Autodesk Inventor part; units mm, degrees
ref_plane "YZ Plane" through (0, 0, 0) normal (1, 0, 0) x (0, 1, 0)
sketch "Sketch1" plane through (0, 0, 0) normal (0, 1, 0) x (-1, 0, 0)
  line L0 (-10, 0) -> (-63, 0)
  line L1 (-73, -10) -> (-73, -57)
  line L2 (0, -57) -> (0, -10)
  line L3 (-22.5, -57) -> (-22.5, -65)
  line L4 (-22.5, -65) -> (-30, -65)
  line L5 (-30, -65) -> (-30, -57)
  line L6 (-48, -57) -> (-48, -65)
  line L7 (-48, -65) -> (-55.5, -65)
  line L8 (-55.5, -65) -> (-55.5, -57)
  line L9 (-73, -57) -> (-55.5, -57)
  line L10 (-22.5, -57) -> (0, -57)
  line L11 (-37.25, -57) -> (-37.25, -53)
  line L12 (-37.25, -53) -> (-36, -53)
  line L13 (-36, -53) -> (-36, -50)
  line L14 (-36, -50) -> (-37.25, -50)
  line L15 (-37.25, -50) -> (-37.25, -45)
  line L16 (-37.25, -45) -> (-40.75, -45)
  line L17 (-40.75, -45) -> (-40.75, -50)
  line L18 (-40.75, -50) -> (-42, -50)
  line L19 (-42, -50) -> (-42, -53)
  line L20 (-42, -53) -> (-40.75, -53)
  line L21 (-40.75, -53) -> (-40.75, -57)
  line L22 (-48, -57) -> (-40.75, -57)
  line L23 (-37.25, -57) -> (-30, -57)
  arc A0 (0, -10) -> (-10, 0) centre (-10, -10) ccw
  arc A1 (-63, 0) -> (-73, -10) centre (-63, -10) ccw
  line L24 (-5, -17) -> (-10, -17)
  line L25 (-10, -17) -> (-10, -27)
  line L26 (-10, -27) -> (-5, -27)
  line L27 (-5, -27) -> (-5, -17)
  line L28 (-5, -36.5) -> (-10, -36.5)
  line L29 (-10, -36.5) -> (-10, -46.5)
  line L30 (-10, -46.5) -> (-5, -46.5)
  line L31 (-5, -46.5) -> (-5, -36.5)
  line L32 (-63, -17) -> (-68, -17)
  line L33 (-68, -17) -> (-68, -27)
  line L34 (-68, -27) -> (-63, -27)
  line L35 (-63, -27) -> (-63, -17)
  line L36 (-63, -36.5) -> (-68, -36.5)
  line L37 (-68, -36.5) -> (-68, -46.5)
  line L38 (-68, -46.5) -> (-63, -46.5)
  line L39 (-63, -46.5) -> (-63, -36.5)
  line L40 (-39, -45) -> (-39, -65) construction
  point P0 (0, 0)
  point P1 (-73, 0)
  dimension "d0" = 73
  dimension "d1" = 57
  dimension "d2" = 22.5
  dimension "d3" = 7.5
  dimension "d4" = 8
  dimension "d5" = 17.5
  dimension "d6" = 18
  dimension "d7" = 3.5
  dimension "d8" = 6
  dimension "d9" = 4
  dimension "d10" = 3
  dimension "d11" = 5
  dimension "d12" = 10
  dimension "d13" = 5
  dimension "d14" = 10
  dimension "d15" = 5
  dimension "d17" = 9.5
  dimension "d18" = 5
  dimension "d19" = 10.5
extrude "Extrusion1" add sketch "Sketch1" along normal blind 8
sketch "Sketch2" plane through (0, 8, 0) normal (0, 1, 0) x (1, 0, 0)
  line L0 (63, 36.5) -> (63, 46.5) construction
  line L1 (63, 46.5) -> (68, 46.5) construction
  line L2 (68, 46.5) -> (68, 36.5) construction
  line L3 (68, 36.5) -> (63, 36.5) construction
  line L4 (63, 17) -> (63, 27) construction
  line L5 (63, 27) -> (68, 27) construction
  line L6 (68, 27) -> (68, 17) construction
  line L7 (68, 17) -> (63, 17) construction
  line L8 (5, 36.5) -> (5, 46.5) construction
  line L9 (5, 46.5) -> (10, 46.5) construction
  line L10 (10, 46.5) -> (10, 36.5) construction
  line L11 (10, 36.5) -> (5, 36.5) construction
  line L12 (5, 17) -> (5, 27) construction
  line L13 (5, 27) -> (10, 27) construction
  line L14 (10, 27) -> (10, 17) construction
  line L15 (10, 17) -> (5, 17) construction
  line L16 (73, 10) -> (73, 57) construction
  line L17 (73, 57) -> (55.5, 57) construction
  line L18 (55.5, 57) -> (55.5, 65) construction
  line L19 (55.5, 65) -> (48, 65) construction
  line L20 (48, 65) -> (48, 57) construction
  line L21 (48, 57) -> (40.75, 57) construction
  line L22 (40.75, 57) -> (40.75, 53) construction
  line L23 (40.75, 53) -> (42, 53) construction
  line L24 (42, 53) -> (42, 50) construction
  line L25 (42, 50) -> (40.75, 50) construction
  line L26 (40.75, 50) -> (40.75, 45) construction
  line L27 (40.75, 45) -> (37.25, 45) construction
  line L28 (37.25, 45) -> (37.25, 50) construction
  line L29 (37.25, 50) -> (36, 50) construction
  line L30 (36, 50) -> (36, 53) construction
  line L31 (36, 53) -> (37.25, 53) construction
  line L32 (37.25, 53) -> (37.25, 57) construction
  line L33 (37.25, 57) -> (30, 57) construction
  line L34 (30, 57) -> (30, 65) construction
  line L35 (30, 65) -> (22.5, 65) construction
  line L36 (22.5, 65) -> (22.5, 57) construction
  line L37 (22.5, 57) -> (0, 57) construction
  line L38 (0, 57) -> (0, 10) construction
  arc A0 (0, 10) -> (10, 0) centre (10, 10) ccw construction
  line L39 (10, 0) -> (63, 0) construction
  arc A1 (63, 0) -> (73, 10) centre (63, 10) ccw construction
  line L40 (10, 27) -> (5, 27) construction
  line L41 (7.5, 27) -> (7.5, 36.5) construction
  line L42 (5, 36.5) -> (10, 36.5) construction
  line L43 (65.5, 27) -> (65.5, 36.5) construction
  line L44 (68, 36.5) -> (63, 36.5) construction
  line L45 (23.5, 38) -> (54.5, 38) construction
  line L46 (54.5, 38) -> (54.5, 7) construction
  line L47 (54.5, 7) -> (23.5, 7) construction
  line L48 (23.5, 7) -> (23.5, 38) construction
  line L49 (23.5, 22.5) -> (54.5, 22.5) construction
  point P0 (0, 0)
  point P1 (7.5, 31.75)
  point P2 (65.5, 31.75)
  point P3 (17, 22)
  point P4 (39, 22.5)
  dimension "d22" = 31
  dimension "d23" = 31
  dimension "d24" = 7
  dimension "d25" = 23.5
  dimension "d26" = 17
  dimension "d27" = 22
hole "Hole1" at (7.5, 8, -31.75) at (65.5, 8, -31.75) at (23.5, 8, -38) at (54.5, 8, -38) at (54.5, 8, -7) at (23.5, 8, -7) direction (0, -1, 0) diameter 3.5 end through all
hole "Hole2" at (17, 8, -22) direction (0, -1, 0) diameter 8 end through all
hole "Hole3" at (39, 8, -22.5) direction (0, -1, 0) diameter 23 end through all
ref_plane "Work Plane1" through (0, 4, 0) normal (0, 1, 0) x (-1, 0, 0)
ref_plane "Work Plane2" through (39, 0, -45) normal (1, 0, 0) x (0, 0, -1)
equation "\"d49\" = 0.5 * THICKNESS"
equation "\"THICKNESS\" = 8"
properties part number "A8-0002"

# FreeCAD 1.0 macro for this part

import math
import FreeCAD as App
import Part
import Sketcher
from FreeCAD import Vector
Q = App.Units.Quantity

doc = App.newDocument("Part")
params = doc.addObject("Spreadsheet::Sheet", "Params")
for row, (alias, value) in enumerate([
    ("sketch1_radius", "10 mm"),
    ("sketch1_width", "5 mm"),
    ("sketch1_height", "8 mm"),
    ("sketch1_height2", "4 mm"),
    ("sketch1_height3", "3 mm"),
    ("pad1_length", "8 mm"),
    ("sketch2_diameter", "3.5 mm"),
    ("hole_diameter", "3.5 mm"),
    ("sketch3_diameter", "8 mm"),
    ("hole2_diameter", "8 mm"),
    ("sketch4_diameter", "23 mm"),
    ("hole3_diameter", "23 mm"),
], start=1):
    params.set(f"A{row}", alias)
    params.set(f"B{row}", "=" + value)
    params.setAlias(f"B{row}", alias)

body = doc.addObject("PartDesign::Body", "Body")

sketch1 = doc.addObject("Sketcher::SketchObject", "Sketch")
body.addObject(sketch1)
sketch1.AttachmentSupport = (doc.XZ_Plane, [""])
sketch1.MapMode = "FlatFace"
sketch1.addGeometry(Part.ArcOfCircle(Part.Circle(Vector(10, -10, 0), Vector(0, 0, 1), 10), math.radians(90), math.radians(180)), False)
sketch1.addGeometry(Part.LineSegment(Vector(10, 0, 0), Vector(63, 0, 0)), False)
sketch1.addGeometry(Part.ArcOfCircle(Part.Circle(Vector(63, -10, 0), Vector(0, 0, 1), 10), math.radians(0), math.radians(90)), False)
sketch1.addGeometry(Part.LineSegment(Vector(73, -10, 0), Vector(73, -57, 0)), False)
sketch1.addGeometry(Part.LineSegment(Vector(73, -57, 0), Vector(55.5, -57, 0)), False)
sketch1.addGeometry(Part.LineSegment(Vector(55.5, -57, 0), Vector(55.5, -65, 0)), False)
sketch1.addGeometry(Part.LineSegment(Vector(55.5, -65, 0), Vector(48, -65, 0)), False)
sketch1.addGeometry(Part.LineSegment(Vector(48, -65, 0), Vector(48, -57, 0)), False)
sketch1.addGeometry(Part.LineSegment(Vector(48, -57, 0), Vector(40.8, -57, 0)), False)
sketch1.addGeometry(Part.LineSegment(Vector(40.8, -57, 0), Vector(40.8, -53, 0)), False)
sketch1.addGeometry(Part.LineSegment(Vector(40.8, -53, 0), Vector(42, -53, 0)), False)
sketch1.addGeometry(Part.LineSegment(Vector(42, -53, 0), Vector(42, -50, 0)), False)
sketch1.addGeometry(Part.LineSegment(Vector(42, -50, 0), Vector(40.8, -50, 0)), False)
sketch1.addGeometry(Part.LineSegment(Vector(40.8, -50, 0), Vector(40.8, -45, 0)), False)
sketch1.addGeometry(Part.LineSegment(Vector(40.8, -45, 0), Vector(37.2, -45, 0)), False)
sketch1.addGeometry(Part.LineSegment(Vector(37.2, -45, 0), Vector(37.2, -50, 0)), False)
sketch1.addGeometry(Part.LineSegment(Vector(37.2, -50, 0), Vector(36, -50, 0)), False)
sketch1.addGeometry(Part.LineSegment(Vector(36, -50, 0), Vector(36, -53, 0)), False)
sketch1.addGeometry(Part.LineSegment(Vector(36, -53, 0), Vector(37.2, -53, 0)), False)
sketch1.addGeometry(Part.LineSegment(Vector(37.2, -53, 0), Vector(37.2, -57, 0)), False)
sketch1.addGeometry(Part.LineSegment(Vector(37.2, -57, 0), Vector(30, -57, 0)), False)
sketch1.addGeometry(Part.LineSegment(Vector(30, -57, 0), Vector(30, -65, 0)), False)
sketch1.addGeometry(Part.LineSegment(Vector(30, -65, 0), Vector(22.5, -65, 0)), False)
sketch1.addGeometry(Part.LineSegment(Vector(22.5, -65, 0), Vector(22.5, -57, 0)), False)
sketch1.addGeometry(Part.LineSegment(Vector(22.5, -57, 0), Vector(0, -57, 0)), False)
sketch1.addGeometry(Part.LineSegment(Vector(0, -57, 0), Vector(0, -10, 0)), False)
sketch1.addGeometry(Part.LineSegment(Vector(68, -36.5, 0), Vector(63, -36.5, 0)), False)
sketch1.addGeometry(Part.LineSegment(Vector(63, -36.5, 0), Vector(63, -46.5, 0)), False)
sketch1.addGeometry(Part.LineSegment(Vector(63, -46.5, 0), Vector(68, -46.5, 0)), False)
sketch1.addGeometry(Part.LineSegment(Vector(68, -46.5, 0), Vector(68, -36.5, 0)), False)
sketch1.addGeometry(Part.LineSegment(Vector(10, -36.5, 0), Vector(5, -36.5, 0)), False)
sketch1.addGeometry(Part.LineSegment(Vector(5, -36.5, 0), Vector(5, -46.5, 0)), False)
sketch1.addGeometry(Part.LineSegment(Vector(5, -46.5, 0), Vector(10, -46.5, 0)), False)
sketch1.addGeometry(Part.LineSegment(Vector(10, -46.5, 0), Vector(10, -36.5, 0)), False)
sketch1.addGeometry(Part.LineSegment(Vector(68, -17, 0), Vector(63, -17, 0)), False)
sketch1.addGeometry(Part.LineSegment(Vector(63, -17, 0), Vector(63, -27, 0)), False)
sketch1.addGeometry(Part.LineSegment(Vector(63, -27, 0), Vector(68, -27, 0)), False)
sketch1.addGeometry(Part.LineSegment(Vector(68, -27, 0), Vector(68, -17, 0)), False)
sketch1.addGeometry(Part.LineSegment(Vector(10, -17, 0), Vector(5, -17, 0)), False)
sketch1.addGeometry(Part.LineSegment(Vector(5, -17, 0), Vector(5, -27, 0)), False)
sketch1.addGeometry(Part.LineSegment(Vector(5, -27, 0), Vector(10, -27, 0)), False)
sketch1.addGeometry(Part.LineSegment(Vector(10, -27, 0), Vector(10, -17, 0)), False)
sketch1.addConstraint(Sketcher.Constraint("Tangent", 0, 1, 1, 1))
sketch1.addConstraint(Sketcher.Constraint("Tangent", 1, 2, 2, 2))
sketch1.addConstraint(Sketcher.Constraint("Tangent", 2, 1, 3, 1))
sketch1.addConstraint(Sketcher.Constraint("Coincident", 3, 2, 4, 1))
sketch1.addConstraint(Sketcher.Constraint("Coincident", 4, 2, 5, 1))
sketch1.addConstraint(Sketcher.Constraint("Coincident", 5, 2, 6, 1))
sketch1.addConstraint(Sketcher.Constraint("Coincident", 6, 2, 7, 1))
sketch1.addConstraint(Sketcher.Constraint("Coincident", 7, 2, 8, 1))
sketch1.addConstraint(Sketcher.Constraint("Coincident", 8, 2, 9, 1))
sketch1.addConstraint(Sketcher.Constraint("Coincident", 9, 2, 10, 1))
sketch1.addConstraint(Sketcher.Constraint("Coincident", 10, 2, 11, 1))
sketch1.addConstraint(Sketcher.Constraint("Coincident", 11, 2, 12, 1))
sketch1.addConstraint(Sketcher.Constraint("Coincident", 12, 2, 13, 1))
sketch1.addConstraint(Sketcher.Constraint("Coincident", 13, 2, 14, 1))
sketch1.addConstraint(Sketcher.Constraint("Coincident", 14, 2, 15, 1))
sketch1.addConstraint(Sketcher.Constraint("Coincident", 15, 2, 16, 1))
sketch1.addConstraint(Sketcher.Constraint("Coincident", 16, 2, 17, 1))
sketch1.addConstraint(Sketcher.Constraint("Coincident", 17, 2, 18, 1))
sketch1.addConstraint(Sketcher.Constraint("Coincident", 18, 2, 19, 1))
sketch1.addConstraint(Sketcher.Constraint("Coincident", 19, 2, 20, 1))
sketch1.addConstraint(Sketcher.Constraint("Coincident", 20, 2, 21, 1))
sketch1.addConstraint(Sketcher.Constraint("Coincident", 21, 2, 22, 1))
sketch1.addConstraint(Sketcher.Constraint("Coincident", 22, 2, 23, 1))
sketch1.addConstraint(Sketcher.Constraint("Coincident", 23, 2, 24, 1))
sketch1.addConstraint(Sketcher.Constraint("Coincident", 24, 2, 25, 1))
sketch1.addConstraint(Sketcher.Constraint("Tangent", 25, 2, 0, 2))
sketch1.addConstraint(Sketcher.Constraint("Coincident", 26, 2, 27, 1))
sketch1.addConstraint(Sketcher.Constraint("Coincident", 27, 2, 28, 1))
sketch1.addConstraint(Sketcher.Constraint("Coincident", 28, 2, 29, 1))
sketch1.addConstraint(Sketcher.Constraint("Coincident", 29, 2, 26, 1))
sketch1.addConstraint(Sketcher.Constraint("Coincident", 30, 2, 31, 1))
sketch1.addConstraint(Sketcher.Constraint("Coincident", 31, 2, 32, 1))
sketch1.addConstraint(Sketcher.Constraint("Coincident", 32, 2, 33, 1))
sketch1.addConstraint(Sketcher.Constraint("Coincident", 33, 2, 30, 1))
sketch1.addConstraint(Sketcher.Constraint("Coincident", 34, 2, 35, 1))
sketch1.addConstraint(Sketcher.Constraint("Coincident", 35, 2, 36, 1))
sketch1.addConstraint(Sketcher.Constraint("Coincident", 36, 2, 37, 1))
sketch1.addConstraint(Sketcher.Constraint("Coincident", 37, 2, 34, 1))
sketch1.addConstraint(Sketcher.Constraint("Coincident", 38, 2, 39, 1))
sketch1.addConstraint(Sketcher.Constraint("Coincident", 39, 2, 40, 1))
sketch1.addConstraint(Sketcher.Constraint("Coincident", 40, 2, 41, 1))
sketch1.addConstraint(Sketcher.Constraint("Coincident", 41, 2, 38, 1))
sketch1.addConstraint(Sketcher.Constraint("Horizontal", 1))
sketch1.addConstraint(Sketcher.Constraint("Vertical", 3))
sketch1.addConstraint(Sketcher.Constraint("Horizontal", 4))
sketch1.addConstraint(Sketcher.Constraint("Vertical", 5))
sketch1.addConstraint(Sketcher.Constraint("Horizontal", 6))
sketch1.addConstraint(Sketcher.Constraint("Vertical", 7))
sketch1.addConstraint(Sketcher.Constraint("Horizontal", 8))
sketch1.addConstraint(Sketcher.Constraint("Vertical", 9))
sketch1.addConstraint(Sketcher.Constraint("Horizontal", 10))
sketch1.addConstraint(Sketcher.Constraint("Vertical", 11))
sketch1.addConstraint(Sketcher.Constraint("Horizontal", 12))
sketch1.addConstraint(Sketcher.Constraint("Vertical", 13))
sketch1.addConstraint(Sketcher.Constraint("Horizontal", 14))
sketch1.addConstraint(Sketcher.Constraint("Vertical", 15))
sketch1.addConstraint(Sketcher.Constraint("Horizontal", 16))
sketch1.addConstraint(Sketcher.Constraint("Vertical", 17))
sketch1.addConstraint(Sketcher.Constraint("Horizontal", 18))
sketch1.addConstraint(Sketcher.Constraint("Vertical", 19))
sketch1.addConstraint(Sketcher.Constraint("Horizontal", 20))
sketch1.addConstraint(Sketcher.Constraint("Vertical", 21))
sketch1.addConstraint(Sketcher.Constraint("Horizontal", 22))
sketch1.addConstraint(Sketcher.Constraint("Vertical", 23))
sketch1.addConstraint(Sketcher.Constraint("Horizontal", 24))
sketch1.addConstraint(Sketcher.Constraint("Vertical", 25))
sketch1.addConstraint(Sketcher.Constraint("Horizontal", 26))
sketch1.addConstraint(Sketcher.Constraint("Vertical", 27))
sketch1.addConstraint(Sketcher.Constraint("Horizontal", 28))
sketch1.addConstraint(Sketcher.Constraint("Vertical", 29))
sketch1.addConstraint(Sketcher.Constraint("Horizontal", 30))
sketch1.addConstraint(Sketcher.Constraint("Vertical", 31))
sketch1.addConstraint(Sketcher.Constraint("Horizontal", 32))
sketch1.addConstraint(Sketcher.Constraint("Vertical", 33))
sketch1.addConstraint(Sketcher.Constraint("Horizontal", 34))
sketch1.addConstraint(Sketcher.Constraint("Vertical", 35))
sketch1.addConstraint(Sketcher.Constraint("Horizontal", 36))
sketch1.addConstraint(Sketcher.Constraint("Vertical", 37))
sketch1.addConstraint(Sketcher.Constraint("Horizontal", 38))
sketch1.addConstraint(Sketcher.Constraint("Vertical", 39))
sketch1.addConstraint(Sketcher.Constraint("Horizontal", 40))
sketch1.addConstraint(Sketcher.Constraint("Vertical", 41))
sketch1.addConstraint(Sketcher.Constraint("Equal", 0, 2))
sketch1.addConstraint(Sketcher.Constraint("PointOnObject", 0, 1, -1))
sketch1.addConstraint(Sketcher.Constraint("PointOnObject", 24, 2, -2))
sketch1.addConstraint(Sketcher.Constraint("Horizontal", 4, 2, 7, 2))
sketch1.addConstraint(Sketcher.Constraint("Horizontal", 12, 2, 15, 2))
sketch1.addConstraint(Sketcher.Constraint("Horizontal", 10, 2, 17, 2))
sketch1.addConstraint(Sketcher.Constraint("Horizontal", 8, 2, 19, 2))
sketch1.addConstraint(Sketcher.Constraint("Horizontal", 6, 2, 21, 2))
sketch1.addConstraint(Sketcher.Constraint("Horizontal", 20, 2, 23, 2))
sketch1.addConstraint(Sketcher.Constraint("Horizontal", 29, 2, 30, 2))
sketch1.addConstraint(Sketcher.Constraint("Horizontal", 28, 2, 31, 2))
sketch1.addConstraint(Sketcher.Constraint("Horizontal", 37, 2, 38, 2))
sketch1.addConstraint(Sketcher.Constraint("Horizontal", 36, 2, 39, 2))
sketch1.addConstraint(Sketcher.Constraint("Vertical", 9, 2, 12, 2))
sketch1.addConstraint(Sketcher.Constraint("Vertical", 15, 2, 18, 2))
sketch1.addConstraint(Sketcher.Constraint("Vertical", 1, 2, 26, 2))
sketch1.addConstraint(Sketcher.Constraint("Vertical", 0, 1, 32, 2))
sketch1.addConstraint(Sketcher.Constraint("Vertical", 27, 2, 34, 2))
sketch1.addConstraint(Sketcher.Constraint("Vertical", 29, 2, 36, 2))
sketch1.addConstraint(Sketcher.Constraint("Vertical", 31, 2, 38, 2))
sketch1.addConstraint(Sketcher.Constraint("Vertical", 33, 2, 40, 2))
sketch1.addConstraint(Sketcher.Constraint("Equal", 12, 16))
sketch1.addConstraint(Sketcher.Constraint("Equal", 8, 20))
sketch1.addConstraint(Sketcher.Constraint("Equal", 6, 22))
sketch1.addConstraint(Sketcher.Constraint("Equal", 28, 30))
sketch1.addConstraint(Sketcher.Constraint("Equal", 40, 13))
sketch1.addConstraint(Sketcher.Constraint("Equal", 33, 35))
sketch1.addConstraint(Sketcher.Constraint("Radius", 0, Q("10 mm")))
sketch1.addConstraint(Sketcher.Constraint("DistanceX", 26, 2, 26, 1, Q("5 mm")))
sketch1.addConstraint(Sketcher.Constraint("DistanceY", 5, 2, 5, 1, Q("8 mm")))
sketch1.addConstraint(Sketcher.Constraint("DistanceY", 9, 1, 9, 2, Q("4 mm")))
sketch1.addConstraint(Sketcher.Constraint("DistanceY", 11, 1, 11, 2, Q("3 mm")))
sketch1.addConstraint(Sketcher.Constraint("DistanceY", 27, 2, 27, 1, Q("10 mm")))
sketch1.addConstraint(Sketcher.Constraint("DistanceX", 4, 2, 4, 1, Q("17.5 mm")))
sketch1.addConstraint(Sketcher.Constraint("DistanceX", 6, 2, 6, 1, Q("7.5 mm")))
sketch1.addConstraint(Sketcher.Constraint("DistanceX", 14, 2, 14, 1, Q("3.5 mm")))
sketch1.addConstraint(Sketcher.Constraint("DistanceX", 24, 2, 24, 1, Q("22.5 mm")))
sketch1.addConstraint(Sketcher.Constraint("DistanceX", -1, 1, 2, 1, Q("73 mm")))
sketch1.addConstraint(Sketcher.Constraint("DistanceY", 3, 2, -1, 1, Q("57 mm")))
sketch1.addConstraint(Sketcher.Constraint("DistanceX", 10, 2, 7, 2, Q("6 mm")))
sketch1.addConstraint(Sketcher.Constraint("DistanceY", 4, 2, 27, 2, Q("10.5 mm")))
sketch1.addConstraint(Sketcher.Constraint("DistanceY", 26, 2, 35, 2, Q("9.5 mm")))
sketch1.setExpression("Constraints[109]", "Params.sketch1_radius")
sketch1.setExpression("Constraints[110]", "Params.sketch1_width")
sketch1.setExpression("Constraints[111]", "Params.sketch1_height")
sketch1.setExpression("Constraints[112]", "Params.sketch1_height2")
sketch1.setExpression("Constraints[113]", "Params.sketch1_height3")
pad1 = doc.addObject("PartDesign::Pad", "Pad")
body.addObject(pad1)
pad1.Profile = sketch1
pad1.setExpression("Length", "Params.pad1_length")
pad1.Reversed = True

sketch2 = doc.addObject("Sketcher::SketchObject", "Sketch001")
body.addObject(sketch2)
sketch2.AttachmentSupport = (doc.XZ_Plane, [""])
sketch2.MapMode = "FlatFace"
sketch2.AttachmentOffset = App.Placement(Vector(0, 0, -8), App.Rotation())
sketch2.addGeometry(Part.Circle(Vector(7.5, -31.8, 0), Vector(0, 0, 1), 1.8), False)
sketch2.addGeometry(Part.Circle(Vector(65.5, -31.8, 0), Vector(0, 0, 1), 1.8), False)
sketch2.addGeometry(Part.Circle(Vector(23.5, -38, 0), Vector(0, 0, 1), 1.8), False)
sketch2.addGeometry(Part.Circle(Vector(54.5, -38, 0), Vector(0, 0, 1), 1.8), False)
sketch2.addGeometry(Part.Circle(Vector(54.5, -7, 0), Vector(0, 0, 1), 1.8), False)
sketch2.addGeometry(Part.Circle(Vector(23.5, -7, 0), Vector(0, 0, 1), 1.8), False)
sketch2.addConstraint(Sketcher.Constraint("Equal", 0, 1))
sketch2.addConstraint(Sketcher.Constraint("Equal", 1, 2))
sketch2.addConstraint(Sketcher.Constraint("Equal", 2, 3))
sketch2.addConstraint(Sketcher.Constraint("Equal", 3, 4))
sketch2.addConstraint(Sketcher.Constraint("Equal", 4, 5))
sketch2.addConstraint(Sketcher.Constraint("Horizontal", 0, 3, 1, 3))
sketch2.addConstraint(Sketcher.Constraint("Horizontal", 2, 3, 3, 3))
sketch2.addConstraint(Sketcher.Constraint("Horizontal", 4, 3, 5, 3))
sketch2.addConstraint(Sketcher.Constraint("Vertical", 3, 3, 4, 3))
sketch2.addConstraint(Sketcher.Constraint("Vertical", 2, 3, 5, 3))
sketch2.addConstraint(Sketcher.Constraint("Diameter", 0, Q("3.5 mm")))
sketch2.addConstraint(Sketcher.Constraint("DistanceY", 2, 3, -1, 1, Q("38 mm")))
sketch2.addConstraint(Sketcher.Constraint("DistanceY", 4, 3, -1, 1, Q("7 mm")))
sketch2.addConstraint(Sketcher.Constraint("DistanceX", 0, 3, 1, 3, Q("58 mm")))
sketch2.addConstraint(Sketcher.Constraint("DistanceX", 0, 3, 2, 3, Q("16 mm")))
sketch2.addConstraint(Sketcher.Constraint("DistanceX", 3, 3, 1, 3, Q("11 mm")))
sketch2.addConstraint(Sketcher.Constraint("DistanceX", -1, 1, 0, 3, Q("7.5 mm")))
sketch2.addConstraint(Sketcher.Constraint("DistanceY", 0, 3, -1, 1, Q("31.75 mm")))
sketch2.setExpression("Constraints[10]", "Params.sketch2_diameter")
doc.recompute()
hole = doc.addObject("PartDesign::Hole", "Hole")
body.addObject(hole)
hole.Profile = sketch2
hole.ThreadType = "None"
hole.setExpression("Diameter", "Params.hole_diameter")
hole.DepthType = "ThroughAll"
hole.Reversed = True

sketch3 = doc.addObject("Sketcher::SketchObject", "Sketch002")
body.addObject(sketch3)
sketch3.AttachmentSupport = (doc.XZ_Plane, [""])
sketch3.MapMode = "FlatFace"
sketch3.AttachmentOffset = App.Placement(Vector(0, 0, -8), App.Rotation())
sketch3.addGeometry(Part.Circle(Vector(17, -22, 0), Vector(0, 0, 1), 4), False)
sketch3.addConstraint(Sketcher.Constraint("Diameter", 0, Q("8 mm")))
sketch3.addConstraint(Sketcher.Constraint("DistanceX", -1, 1, 0, 3, Q("17 mm")))
sketch3.addConstraint(Sketcher.Constraint("DistanceY", 0, 3, -1, 1, Q("22 mm")))
sketch3.setExpression("Constraints[0]", "Params.sketch3_diameter")
doc.recompute()
hole2 = doc.addObject("PartDesign::Hole", "Hole001")
body.addObject(hole2)
hole2.Profile = sketch3
hole2.ThreadType = "None"
hole2.setExpression("Diameter", "Params.hole2_diameter")
hole2.DepthType = "ThroughAll"
hole2.Reversed = True

sketch4 = doc.addObject("Sketcher::SketchObject", "Sketch003")
body.addObject(sketch4)
sketch4.AttachmentSupport = (doc.XZ_Plane, [""])
sketch4.MapMode = "FlatFace"
sketch4.AttachmentOffset = App.Placement(Vector(0, 0, -8), App.Rotation())
sketch4.addGeometry(Part.Circle(Vector(39, -22, 0), Vector(0, 0, 1), 12), False)
sketch4.addConstraint(Sketcher.Constraint("Diameter", 0, Q("23 mm")))
sketch4.addConstraint(Sketcher.Constraint("DistanceX", -1, 1, 0, 3, Q("39 mm")))
sketch4.addConstraint(Sketcher.Constraint("DistanceY", 0, 3, -1, 1, Q("22.5 mm")))
sketch4.setExpression("Constraints[0]", "Params.sketch4_diameter")
doc.recompute()
hole3 = doc.addObject("PartDesign::Hole", "Hole002")
body.addObject(hole3)
hole3.Profile = sketch4
hole3.ThreadType = "None"
hole3.setExpression("Diameter", "Params.hole3_diameter")
hole3.DepthType = "ThroughAll"
hole3.Reversed = True

doc.recompute()
